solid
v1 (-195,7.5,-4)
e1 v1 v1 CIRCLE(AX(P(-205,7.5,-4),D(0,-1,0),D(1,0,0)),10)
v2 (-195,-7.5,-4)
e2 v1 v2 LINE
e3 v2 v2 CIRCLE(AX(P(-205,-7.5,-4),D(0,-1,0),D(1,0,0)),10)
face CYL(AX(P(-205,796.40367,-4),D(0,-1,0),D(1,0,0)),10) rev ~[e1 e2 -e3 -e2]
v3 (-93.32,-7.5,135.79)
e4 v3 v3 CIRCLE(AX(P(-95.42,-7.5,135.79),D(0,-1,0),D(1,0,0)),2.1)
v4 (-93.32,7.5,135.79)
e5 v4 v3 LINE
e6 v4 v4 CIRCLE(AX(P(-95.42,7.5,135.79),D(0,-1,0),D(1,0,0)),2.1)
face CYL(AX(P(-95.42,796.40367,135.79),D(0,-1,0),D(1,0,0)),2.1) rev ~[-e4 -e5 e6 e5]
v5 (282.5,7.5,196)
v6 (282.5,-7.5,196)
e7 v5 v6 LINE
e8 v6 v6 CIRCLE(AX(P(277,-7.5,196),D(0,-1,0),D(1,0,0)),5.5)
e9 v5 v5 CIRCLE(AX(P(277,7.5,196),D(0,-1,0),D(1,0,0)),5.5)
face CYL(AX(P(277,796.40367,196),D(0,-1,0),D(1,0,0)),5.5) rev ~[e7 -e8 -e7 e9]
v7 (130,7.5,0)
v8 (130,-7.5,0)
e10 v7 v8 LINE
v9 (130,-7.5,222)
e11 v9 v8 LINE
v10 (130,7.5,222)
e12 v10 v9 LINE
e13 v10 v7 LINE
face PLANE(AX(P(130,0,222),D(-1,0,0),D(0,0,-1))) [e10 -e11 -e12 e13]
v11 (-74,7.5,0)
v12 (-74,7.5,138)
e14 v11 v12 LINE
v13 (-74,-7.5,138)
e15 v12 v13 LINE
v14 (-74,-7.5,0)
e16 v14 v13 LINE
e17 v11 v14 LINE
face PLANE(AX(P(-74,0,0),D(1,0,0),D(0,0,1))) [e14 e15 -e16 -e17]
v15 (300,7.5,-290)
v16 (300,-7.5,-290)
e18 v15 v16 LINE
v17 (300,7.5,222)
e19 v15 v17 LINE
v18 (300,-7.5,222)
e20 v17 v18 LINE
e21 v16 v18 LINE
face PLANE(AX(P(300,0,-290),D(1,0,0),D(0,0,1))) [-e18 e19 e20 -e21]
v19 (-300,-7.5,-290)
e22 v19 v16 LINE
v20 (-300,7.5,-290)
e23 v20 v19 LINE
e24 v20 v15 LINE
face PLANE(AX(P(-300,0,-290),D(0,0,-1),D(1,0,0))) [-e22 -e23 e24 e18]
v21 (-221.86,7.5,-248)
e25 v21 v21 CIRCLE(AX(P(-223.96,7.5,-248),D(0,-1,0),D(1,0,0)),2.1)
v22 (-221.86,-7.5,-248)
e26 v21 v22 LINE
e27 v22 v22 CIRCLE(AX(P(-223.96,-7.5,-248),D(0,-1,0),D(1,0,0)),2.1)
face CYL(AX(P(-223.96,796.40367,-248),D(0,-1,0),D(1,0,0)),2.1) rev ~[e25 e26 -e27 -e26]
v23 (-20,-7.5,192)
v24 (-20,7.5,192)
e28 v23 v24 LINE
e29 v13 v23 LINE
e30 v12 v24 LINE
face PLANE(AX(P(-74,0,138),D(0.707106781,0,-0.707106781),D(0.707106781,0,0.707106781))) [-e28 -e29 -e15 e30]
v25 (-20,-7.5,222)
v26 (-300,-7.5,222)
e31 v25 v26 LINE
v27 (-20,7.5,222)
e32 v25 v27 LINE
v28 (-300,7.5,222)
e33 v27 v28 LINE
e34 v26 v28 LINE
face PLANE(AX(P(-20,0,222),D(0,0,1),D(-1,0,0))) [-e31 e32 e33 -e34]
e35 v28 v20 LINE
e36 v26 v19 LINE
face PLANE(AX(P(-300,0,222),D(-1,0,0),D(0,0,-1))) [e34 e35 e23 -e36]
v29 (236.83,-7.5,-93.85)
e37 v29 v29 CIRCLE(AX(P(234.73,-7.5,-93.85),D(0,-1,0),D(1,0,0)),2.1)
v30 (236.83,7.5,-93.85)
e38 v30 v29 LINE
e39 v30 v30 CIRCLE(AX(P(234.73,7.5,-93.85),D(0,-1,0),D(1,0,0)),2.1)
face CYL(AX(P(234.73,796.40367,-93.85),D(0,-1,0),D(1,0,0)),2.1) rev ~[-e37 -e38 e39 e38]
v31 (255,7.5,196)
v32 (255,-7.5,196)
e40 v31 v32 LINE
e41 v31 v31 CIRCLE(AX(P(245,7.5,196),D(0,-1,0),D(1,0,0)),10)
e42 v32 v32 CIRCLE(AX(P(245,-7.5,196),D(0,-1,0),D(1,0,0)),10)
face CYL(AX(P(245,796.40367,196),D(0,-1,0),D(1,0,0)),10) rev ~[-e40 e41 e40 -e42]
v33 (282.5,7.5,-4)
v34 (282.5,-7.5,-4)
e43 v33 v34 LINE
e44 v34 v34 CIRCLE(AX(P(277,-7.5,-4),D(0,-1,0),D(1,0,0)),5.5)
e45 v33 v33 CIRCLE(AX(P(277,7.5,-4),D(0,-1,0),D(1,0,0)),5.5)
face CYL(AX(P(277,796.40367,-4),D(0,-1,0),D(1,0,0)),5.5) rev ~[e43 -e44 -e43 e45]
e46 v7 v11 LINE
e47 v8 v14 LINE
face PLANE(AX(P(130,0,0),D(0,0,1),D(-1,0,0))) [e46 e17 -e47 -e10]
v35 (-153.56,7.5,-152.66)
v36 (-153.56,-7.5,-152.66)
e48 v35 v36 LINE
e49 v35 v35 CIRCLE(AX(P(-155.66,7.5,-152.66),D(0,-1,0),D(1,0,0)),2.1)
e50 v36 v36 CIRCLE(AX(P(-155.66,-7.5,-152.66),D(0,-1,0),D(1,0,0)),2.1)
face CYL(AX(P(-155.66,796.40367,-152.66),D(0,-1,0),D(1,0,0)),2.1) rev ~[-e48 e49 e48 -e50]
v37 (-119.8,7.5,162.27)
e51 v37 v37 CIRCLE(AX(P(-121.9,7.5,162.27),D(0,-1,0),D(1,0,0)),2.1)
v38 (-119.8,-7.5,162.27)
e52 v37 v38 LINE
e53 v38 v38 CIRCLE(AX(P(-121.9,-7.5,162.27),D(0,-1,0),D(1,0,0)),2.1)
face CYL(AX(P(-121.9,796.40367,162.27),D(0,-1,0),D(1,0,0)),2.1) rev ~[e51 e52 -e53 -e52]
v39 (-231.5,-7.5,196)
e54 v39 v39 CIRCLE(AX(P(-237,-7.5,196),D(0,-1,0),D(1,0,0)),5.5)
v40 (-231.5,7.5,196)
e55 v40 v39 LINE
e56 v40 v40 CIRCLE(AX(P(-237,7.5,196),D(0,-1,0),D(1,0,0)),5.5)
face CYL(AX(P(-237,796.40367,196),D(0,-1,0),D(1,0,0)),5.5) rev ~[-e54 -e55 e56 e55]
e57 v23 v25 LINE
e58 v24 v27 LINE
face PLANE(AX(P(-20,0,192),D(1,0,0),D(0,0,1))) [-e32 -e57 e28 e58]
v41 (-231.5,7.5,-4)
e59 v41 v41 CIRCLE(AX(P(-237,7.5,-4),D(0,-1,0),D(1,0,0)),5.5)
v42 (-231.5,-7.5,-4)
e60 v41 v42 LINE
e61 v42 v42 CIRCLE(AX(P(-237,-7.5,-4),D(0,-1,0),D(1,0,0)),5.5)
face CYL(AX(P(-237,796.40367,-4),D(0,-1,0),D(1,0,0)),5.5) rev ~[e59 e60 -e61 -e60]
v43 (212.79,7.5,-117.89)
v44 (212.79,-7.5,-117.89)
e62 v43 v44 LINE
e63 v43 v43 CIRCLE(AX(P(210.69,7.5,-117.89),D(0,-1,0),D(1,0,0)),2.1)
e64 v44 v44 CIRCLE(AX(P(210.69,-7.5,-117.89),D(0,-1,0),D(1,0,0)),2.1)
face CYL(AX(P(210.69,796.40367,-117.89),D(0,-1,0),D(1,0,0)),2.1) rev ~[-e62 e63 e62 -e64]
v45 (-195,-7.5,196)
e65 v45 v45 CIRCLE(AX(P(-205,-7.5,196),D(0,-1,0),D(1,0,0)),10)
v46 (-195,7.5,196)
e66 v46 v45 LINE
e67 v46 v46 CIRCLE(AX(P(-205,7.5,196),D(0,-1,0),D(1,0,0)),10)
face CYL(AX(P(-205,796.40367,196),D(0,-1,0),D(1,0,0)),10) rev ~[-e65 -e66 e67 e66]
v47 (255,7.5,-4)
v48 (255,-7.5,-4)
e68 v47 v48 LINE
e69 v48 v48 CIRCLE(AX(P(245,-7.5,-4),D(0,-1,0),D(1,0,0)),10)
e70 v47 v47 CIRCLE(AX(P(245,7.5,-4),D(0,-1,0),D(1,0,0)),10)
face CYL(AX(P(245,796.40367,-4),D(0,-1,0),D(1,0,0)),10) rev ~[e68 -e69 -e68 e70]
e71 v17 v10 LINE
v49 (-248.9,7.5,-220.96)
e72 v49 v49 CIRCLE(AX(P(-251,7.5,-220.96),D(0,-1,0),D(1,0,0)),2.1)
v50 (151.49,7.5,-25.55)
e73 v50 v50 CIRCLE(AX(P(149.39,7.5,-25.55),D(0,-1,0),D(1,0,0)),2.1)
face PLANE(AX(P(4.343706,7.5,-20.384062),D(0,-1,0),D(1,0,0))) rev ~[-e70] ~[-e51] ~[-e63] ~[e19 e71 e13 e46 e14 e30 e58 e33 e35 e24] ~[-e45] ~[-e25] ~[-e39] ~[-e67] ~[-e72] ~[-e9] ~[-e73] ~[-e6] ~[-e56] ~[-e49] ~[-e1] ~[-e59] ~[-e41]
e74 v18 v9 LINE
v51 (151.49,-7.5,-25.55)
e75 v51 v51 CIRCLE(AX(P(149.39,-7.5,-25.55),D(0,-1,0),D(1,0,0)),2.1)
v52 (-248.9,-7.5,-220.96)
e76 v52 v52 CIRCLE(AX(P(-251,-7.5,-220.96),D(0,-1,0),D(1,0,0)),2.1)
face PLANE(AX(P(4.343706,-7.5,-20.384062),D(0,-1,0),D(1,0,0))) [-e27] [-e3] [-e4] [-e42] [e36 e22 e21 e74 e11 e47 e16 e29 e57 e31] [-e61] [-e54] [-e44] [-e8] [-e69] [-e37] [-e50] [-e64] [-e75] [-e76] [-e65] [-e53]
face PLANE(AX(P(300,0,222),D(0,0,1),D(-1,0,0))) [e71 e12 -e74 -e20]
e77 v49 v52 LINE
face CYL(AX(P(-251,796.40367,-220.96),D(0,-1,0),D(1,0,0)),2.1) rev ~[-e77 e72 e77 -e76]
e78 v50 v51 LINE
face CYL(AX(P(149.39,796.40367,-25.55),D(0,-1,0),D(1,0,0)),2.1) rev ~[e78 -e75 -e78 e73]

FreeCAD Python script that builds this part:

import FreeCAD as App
import Part
import Sketcher

V = App.Vector

doc = App.newDocument("Part")
body = doc.addObject("PartDesign::Body", "Body")

sketch1 = doc.addObject("Sketcher::SketchObject", "Sketch")
body.addObject(sketch1)
sketch1.AttachmentSupport = (doc.XZ_Plane, [""])
sketch1.MapMode = "FlatFace"
sketch1.addGeometry(Part.LineSegment(V(-300, 222, 0), V(-300, -290, 0)), False)
sketch1.addGeometry(Part.LineSegment(V(-300, -290, 0), V(300, -290, 0)), False)
sketch1.addGeometry(Part.LineSegment(V(300, -290, 0), V(300, 222, 0)), False)
sketch1.addGeometry(Part.LineSegment(V(300, 222, 0), V(130, 222, 0)), False)
sketch1.addGeometry(Part.LineSegment(V(130, 222, 0), V(130, 0, 0)), False)
sketch1.addGeometry(Part.LineSegment(V(130, 0, 0), V(-74, 0, 0)), False)
sketch1.addGeometry(Part.LineSegment(V(-74, 0, 0), V(-74, 138, 0)), False)
sketch1.addGeometry(Part.LineSegment(V(-74, 138, 0), V(-20, 192, 0)), False)
sketch1.addGeometry(Part.LineSegment(V(-20, 192, 0), V(-20, 222, 0)), False)
sketch1.addGeometry(Part.LineSegment(V(-20, 222, 0), V(-300, 222, 0)), False)
sketch1.addConstraint(Sketcher.Constraint("Coincident", 0, 2, 1, 1))
sketch1.addConstraint(Sketcher.Constraint("Coincident", 1, 2, 2, 1))
sketch1.addConstraint(Sketcher.Constraint("Coincident", 2, 2, 3, 1))
sketch1.addConstraint(Sketcher.Constraint("Coincident", 3, 2, 4, 1))
sketch1.addConstraint(Sketcher.Constraint("Coincident", 4, 2, 5, 1))
sketch1.addConstraint(Sketcher.Constraint("Coincident", 5, 2, 6, 1))
sketch1.addConstraint(Sketcher.Constraint("Coincident", 6, 2, 7, 1))
sketch1.addConstraint(Sketcher.Constraint("Coincident", 7, 2, 8, 1))
sketch1.addConstraint(Sketcher.Constraint("Coincident", 8, 2, 9, 1))
sketch1.addConstraint(Sketcher.Constraint("Coincident", 9, 2, 0, 1))
sketch1.addConstraint(Sketcher.Constraint("Vertical", 0))
sketch1.addConstraint(Sketcher.Constraint("Horizontal", 1))
sketch1.addConstraint(Sketcher.Constraint("Vertical", 2))
sketch1.addConstraint(Sketcher.Constraint("Horizontal", 3))
sketch1.addConstraint(Sketcher.Constraint("Vertical", 4))
sketch1.addConstraint(Sketcher.Constraint("Horizontal", 5))
sketch1.addConstraint(Sketcher.Constraint("Vertical", 6))
sketch1.addConstraint(Sketcher.Constraint("Vertical", 8))
sketch1.addConstraint(Sketcher.Constraint("Horizontal", 9))
sketch1.addConstraint(Sketcher.Constraint("Symmetric", 2, 2, 9, 2, -2))
sketch1.addConstraint(Sketcher.Constraint("PointOnObject", 4, 2, -1))
sketch1.addConstraint(Sketcher.Constraint("DistanceX", 1, 1, 1, 2, 600.0))
sketch1.addConstraint(Sketcher.Constraint("DistanceX", 3, 2, 3, 1, 170.0))
sketch1.addConstraint(Sketcher.Constraint("DistanceX", 5, 2, 5, 1, 204.0))
sketch1.addConstraint(Sketcher.Constraint("DistanceX", 9, 2, 9, 1, 280.0))
sketch1.addConstraint(Sketcher.Constraint("DistanceY", 0, 2, 0, 1, 512.0))
sketch1.addConstraint(Sketcher.Constraint("DistanceY", 4, 2, 4, 1, 222.0))
sketch1.addConstraint(Sketcher.Constraint("DistanceY", 6, 1, 6, 2, 138.0))
sketch1.addConstraint(Sketcher.Constraint("DistanceY", 8, 1, 8, 2, 30.0))
pad1 = doc.addObject("PartDesign::Pad", "Pad")
body.addObject(pad1)
pad1.Profile = sketch1
pad1.Length = 15
pad1.Midplane = True

sketch2 = doc.addObject("Sketcher::SketchObject", "Sketch001")
body.addObject(sketch2)
sketch2.AttachmentSupport = (doc.XZ_Plane, [""])
sketch2.MapMode = "FlatFace"
sketch2.AttachmentOffset = App.Placement(V(0, 0, -7.5), App.Rotation())
sketch2.addGeometry(Part.Circle(V(245, 196, 0), V(0, 0, 1), 10), False)
sketch2.addGeometry(Part.Circle(V(-205, 196, 0), V(0, 0, 1), 10), False)
sketch2.addGeometry(Part.Circle(V(245, -4, 0), V(0, 0, 1), 10), False)
sketch2.addGeometry(Part.Circle(V(-205, -4, 0), V(0, 0, 1), 10), False)
sketch2.addConstraint(Sketcher.Constraint("Equal", 0, 1))
sketch2.addConstraint(Sketcher.Constraint("Equal", 1, 2))
sketch2.addConstraint(Sketcher.Constraint("Equal", 2, 3))
sketch2.addConstraint(Sketcher.Constraint("Horizontal", 0, 3, 1, 3))
sketch2.addConstraint(Sketcher.Constraint("Horizontal", 2, 3, 3, 3))
sketch2.addConstraint(Sketcher.Constraint("Vertical", 0, 3, 2, 3))
sketch2.addConstraint(Sketcher.Constraint("Vertical", 1, 3, 3, 3))
sketch2.addConstraint(Sketcher.Constraint("Diameter", 0, 20.0))
sketch2.addConstraint(Sketcher.Constraint("DistanceX", -1, 1, 0, 3, 245.0))
sketch2.addConstraint(Sketcher.Constraint("DistanceY", -1, 1, 0, 3, 196.0))
sketch2.addConstraint(Sketcher.Constraint("DistanceX", 1, 3, -1, 1, 205.0))
sketch2.addConstraint(Sketcher.Constraint("DistanceY", 2, 3, -1, 1, 4.0))
doc.recompute()
hole = doc.addObject("PartDesign::Hole", "Hole")
body.addObject(hole)
hole.Profile = sketch2
hole.ThreadType = "None"
hole.Diameter = 20
hole.DepthType = "ThroughAll"
hole.Reversed = True

sketch3 = doc.addObject("Sketcher::SketchObject", "Sketch002")
body.addObject(sketch3)
sketch3.AttachmentSupport = (doc.XZ_Plane, [""])
sketch3.MapMode = "FlatFace"
sketch3.AttachmentOffset = App.Placement(V(0, 0, -7.5), App.Rotation())
sketch3.addGeometry(Part.Circle(V(210.7, -117.9, 0), V(0, 0, 1), 2.1), False)
sketch3.addGeometry(Part.Circle(V(234.7, -93.8, 0), V(0, 0, 1), 2.1), False)
sketch3.addGeometry(Part.Circle(V(149.4, -25.6, 0), V(0, 0, 1), 2.1), False)
sketch3.addGeometry(Part.Circle(V(-155.7, -152.7, 0), V(0, 0, 1), 2.1), False)
sketch3.addGeometry(Part.Circle(V(-224, -248, 0), V(0, 0, 1), 2.1), False)
sketch3.addGeometry(Part.Circle(V(-251, -221, 0), V(0, 0, 1), 2.1), False)
sketch3.addGeometry(Part.Circle(V(-95.4, 135.8, 0), V(0, 0, 1), 2.1), False)
sketch3.addGeometry(Part.Circle(V(-121.9, 162.3, 0), V(0, 0, 1), 2.1), False)
sketch3.addConstraint(Sketcher.Constraint("Equal", 0, 1))
sketch3.addConstraint(Sketcher.Constraint("Equal", 1, 2))
sketch3.addConstraint(Sketcher.Constraint("Equal", 2, 3))
sketch3.addConstraint(Sketcher.Constraint("Equal", 3, 4))
sketch3.addConstraint(Sketcher.Constraint("Equal", 4, 5))
sketch3.addConstraint(Sketcher.Constraint("Equal", 5, 6))
sketch3.addConstraint(Sketcher.Constraint("Equal", 6, 7))
sketch3.addConstraint(Sketcher.Constraint("Diameter", 0, 4.2))
sketch3.addConstraint(Sketcher.Constraint("DistanceY", 4, 3, -1, 1, 248.0))
sketch3.addConstraint(Sketcher.Constraint("DistanceX", 5, 3, -1, 1, 251.0))
sketch3.addConstraint(Sketcher.Constraint("DistanceX", 7, 3, -1, 1, 121.9))
sketch3.addConstraint(Sketcher.Constraint("DistanceY", 1, 3, 2, 3, 68.3))
sketch3.addConstraint(Sketcher.Constraint("DistanceX", 2, 3, 0, 3, 61.3))
sketch3.addConstraint(Sketcher.Constraint("DistanceX", 4, 3, 3, 3, 68.3))
sketch3.addConstraint(Sketcher.Constraint("DistanceY", 5, 3, 3, 3, 68.3))
sketch3.addConstraint(Sketcher.Constraint("DistanceX", -1, 1, 0, 3, 210.69))
sketch3.addConstraint(Sketcher.Constraint("DistanceY", 0, 3, -1, 1, 117.89))
sketch3.addConstraint(Sketcher.Constraint("DistanceX", -1, 1, 1, 3, 234.73))
sketch3.addConstraint(Sketcher.Constraint("DistanceY", 1, 3, -1, 1, 93.85))
sketch3.addConstraint(Sketcher.Constraint("DistanceX", 3, 3, -1, 1, 155.66))
sketch3.addConstraint(Sketcher.Constraint("DistanceY", 3, 3, -1, 1, 152.66))
sketch3.addConstraint(Sketcher.Constraint("DistanceX", 6, 3, -1, 1, 95.42))
sketch3.addConstraint(Sketcher.Constraint("DistanceY", -1, 1, 6, 3, 135.79))
sketch3.addConstraint(Sketcher.Constraint("DistanceY", -1, 1, 7, 3, 162.27))
doc.recompute()
hole2 = doc.addObject("PartDesign::Hole", "Hole001")
body.addObject(hole2)
hole2.Profile = sketch3
hole2.ThreadType = "None"
hole2.Diameter = 4.2
hole2.DepthType = "ThroughAll"
hole2.Reversed = True

sketch4 = doc.addObject("Sketcher::SketchObject", "Sketch003")
body.addObject(sketch4)
sketch4.AttachmentSupport = (doc.XZ_Plane, [""])
sketch4.MapMode = "FlatFace"
sketch4.AttachmentOffset = App.Placement(V(0, 0, -7.5), App.Rotation())
sketch4.addGeometry(Part.Circle(V(277, 196, 0), V(0, 0, 1), 6), False)
sketch4.addGeometry(Part.Circle(V(277, -4, 0), V(0, 0, 1), 6), False)
sketch4.addGeometry(Part.Circle(V(-237, 196, 0), V(0, 0, 1), 6), False)
sketch4.addGeometry(Part.Circle(V(-237, -4, 0), V(0, 0, 1), 6), False)
sketch4.addConstraint(Sketcher.Constraint("Equal", 0, 1))
sketch4.addConstraint(Sketcher.Constraint("Equal", 1, 2))
sketch4.addConstraint(Sketcher.Constraint("Equal", 2, 3))
sketch4.addConstraint(Sketcher.Constraint("Horizontal", 0, 3, 2, 3))
sketch4.addConstraint(Sketcher.Constraint("Horizontal", 1, 3, 3, 3))
sketch4.addConstraint(Sketcher.Constraint("Vertical", 0, 3, 1, 3))
sketch4.addConstraint(Sketcher.Constraint("Vertical", 2, 3, 3, 3))
sketch4.addConstraint(Sketcher.Constraint("Diameter", 0, 11.0))
sketch4.addConstraint(Sketcher.Constraint("DistanceX", -1, 1, 0, 3, 277.0))
sketch4.addConstraint(Sketcher.Constraint("DistanceY", -1, 1, 0, 3, 196.0))
sketch4.addConstraint(Sketcher.Constraint("DistanceY", 1, 3, -1, 1, 4.0))
sketch4.addConstraint(Sketcher.Constraint("DistanceX", 2, 3, -1, 1, 237.0))
doc.recompute()
hole3 = doc.addObject("PartDesign::Hole", "Hole002")
body.addObject(hole3)
hole3.Profile = sketch4
hole3.ThreadType = "None"
hole3.Diameter = 11
hole3.DepthType = "ThroughAll"
hole3.Reversed = True

doc.recompute()
